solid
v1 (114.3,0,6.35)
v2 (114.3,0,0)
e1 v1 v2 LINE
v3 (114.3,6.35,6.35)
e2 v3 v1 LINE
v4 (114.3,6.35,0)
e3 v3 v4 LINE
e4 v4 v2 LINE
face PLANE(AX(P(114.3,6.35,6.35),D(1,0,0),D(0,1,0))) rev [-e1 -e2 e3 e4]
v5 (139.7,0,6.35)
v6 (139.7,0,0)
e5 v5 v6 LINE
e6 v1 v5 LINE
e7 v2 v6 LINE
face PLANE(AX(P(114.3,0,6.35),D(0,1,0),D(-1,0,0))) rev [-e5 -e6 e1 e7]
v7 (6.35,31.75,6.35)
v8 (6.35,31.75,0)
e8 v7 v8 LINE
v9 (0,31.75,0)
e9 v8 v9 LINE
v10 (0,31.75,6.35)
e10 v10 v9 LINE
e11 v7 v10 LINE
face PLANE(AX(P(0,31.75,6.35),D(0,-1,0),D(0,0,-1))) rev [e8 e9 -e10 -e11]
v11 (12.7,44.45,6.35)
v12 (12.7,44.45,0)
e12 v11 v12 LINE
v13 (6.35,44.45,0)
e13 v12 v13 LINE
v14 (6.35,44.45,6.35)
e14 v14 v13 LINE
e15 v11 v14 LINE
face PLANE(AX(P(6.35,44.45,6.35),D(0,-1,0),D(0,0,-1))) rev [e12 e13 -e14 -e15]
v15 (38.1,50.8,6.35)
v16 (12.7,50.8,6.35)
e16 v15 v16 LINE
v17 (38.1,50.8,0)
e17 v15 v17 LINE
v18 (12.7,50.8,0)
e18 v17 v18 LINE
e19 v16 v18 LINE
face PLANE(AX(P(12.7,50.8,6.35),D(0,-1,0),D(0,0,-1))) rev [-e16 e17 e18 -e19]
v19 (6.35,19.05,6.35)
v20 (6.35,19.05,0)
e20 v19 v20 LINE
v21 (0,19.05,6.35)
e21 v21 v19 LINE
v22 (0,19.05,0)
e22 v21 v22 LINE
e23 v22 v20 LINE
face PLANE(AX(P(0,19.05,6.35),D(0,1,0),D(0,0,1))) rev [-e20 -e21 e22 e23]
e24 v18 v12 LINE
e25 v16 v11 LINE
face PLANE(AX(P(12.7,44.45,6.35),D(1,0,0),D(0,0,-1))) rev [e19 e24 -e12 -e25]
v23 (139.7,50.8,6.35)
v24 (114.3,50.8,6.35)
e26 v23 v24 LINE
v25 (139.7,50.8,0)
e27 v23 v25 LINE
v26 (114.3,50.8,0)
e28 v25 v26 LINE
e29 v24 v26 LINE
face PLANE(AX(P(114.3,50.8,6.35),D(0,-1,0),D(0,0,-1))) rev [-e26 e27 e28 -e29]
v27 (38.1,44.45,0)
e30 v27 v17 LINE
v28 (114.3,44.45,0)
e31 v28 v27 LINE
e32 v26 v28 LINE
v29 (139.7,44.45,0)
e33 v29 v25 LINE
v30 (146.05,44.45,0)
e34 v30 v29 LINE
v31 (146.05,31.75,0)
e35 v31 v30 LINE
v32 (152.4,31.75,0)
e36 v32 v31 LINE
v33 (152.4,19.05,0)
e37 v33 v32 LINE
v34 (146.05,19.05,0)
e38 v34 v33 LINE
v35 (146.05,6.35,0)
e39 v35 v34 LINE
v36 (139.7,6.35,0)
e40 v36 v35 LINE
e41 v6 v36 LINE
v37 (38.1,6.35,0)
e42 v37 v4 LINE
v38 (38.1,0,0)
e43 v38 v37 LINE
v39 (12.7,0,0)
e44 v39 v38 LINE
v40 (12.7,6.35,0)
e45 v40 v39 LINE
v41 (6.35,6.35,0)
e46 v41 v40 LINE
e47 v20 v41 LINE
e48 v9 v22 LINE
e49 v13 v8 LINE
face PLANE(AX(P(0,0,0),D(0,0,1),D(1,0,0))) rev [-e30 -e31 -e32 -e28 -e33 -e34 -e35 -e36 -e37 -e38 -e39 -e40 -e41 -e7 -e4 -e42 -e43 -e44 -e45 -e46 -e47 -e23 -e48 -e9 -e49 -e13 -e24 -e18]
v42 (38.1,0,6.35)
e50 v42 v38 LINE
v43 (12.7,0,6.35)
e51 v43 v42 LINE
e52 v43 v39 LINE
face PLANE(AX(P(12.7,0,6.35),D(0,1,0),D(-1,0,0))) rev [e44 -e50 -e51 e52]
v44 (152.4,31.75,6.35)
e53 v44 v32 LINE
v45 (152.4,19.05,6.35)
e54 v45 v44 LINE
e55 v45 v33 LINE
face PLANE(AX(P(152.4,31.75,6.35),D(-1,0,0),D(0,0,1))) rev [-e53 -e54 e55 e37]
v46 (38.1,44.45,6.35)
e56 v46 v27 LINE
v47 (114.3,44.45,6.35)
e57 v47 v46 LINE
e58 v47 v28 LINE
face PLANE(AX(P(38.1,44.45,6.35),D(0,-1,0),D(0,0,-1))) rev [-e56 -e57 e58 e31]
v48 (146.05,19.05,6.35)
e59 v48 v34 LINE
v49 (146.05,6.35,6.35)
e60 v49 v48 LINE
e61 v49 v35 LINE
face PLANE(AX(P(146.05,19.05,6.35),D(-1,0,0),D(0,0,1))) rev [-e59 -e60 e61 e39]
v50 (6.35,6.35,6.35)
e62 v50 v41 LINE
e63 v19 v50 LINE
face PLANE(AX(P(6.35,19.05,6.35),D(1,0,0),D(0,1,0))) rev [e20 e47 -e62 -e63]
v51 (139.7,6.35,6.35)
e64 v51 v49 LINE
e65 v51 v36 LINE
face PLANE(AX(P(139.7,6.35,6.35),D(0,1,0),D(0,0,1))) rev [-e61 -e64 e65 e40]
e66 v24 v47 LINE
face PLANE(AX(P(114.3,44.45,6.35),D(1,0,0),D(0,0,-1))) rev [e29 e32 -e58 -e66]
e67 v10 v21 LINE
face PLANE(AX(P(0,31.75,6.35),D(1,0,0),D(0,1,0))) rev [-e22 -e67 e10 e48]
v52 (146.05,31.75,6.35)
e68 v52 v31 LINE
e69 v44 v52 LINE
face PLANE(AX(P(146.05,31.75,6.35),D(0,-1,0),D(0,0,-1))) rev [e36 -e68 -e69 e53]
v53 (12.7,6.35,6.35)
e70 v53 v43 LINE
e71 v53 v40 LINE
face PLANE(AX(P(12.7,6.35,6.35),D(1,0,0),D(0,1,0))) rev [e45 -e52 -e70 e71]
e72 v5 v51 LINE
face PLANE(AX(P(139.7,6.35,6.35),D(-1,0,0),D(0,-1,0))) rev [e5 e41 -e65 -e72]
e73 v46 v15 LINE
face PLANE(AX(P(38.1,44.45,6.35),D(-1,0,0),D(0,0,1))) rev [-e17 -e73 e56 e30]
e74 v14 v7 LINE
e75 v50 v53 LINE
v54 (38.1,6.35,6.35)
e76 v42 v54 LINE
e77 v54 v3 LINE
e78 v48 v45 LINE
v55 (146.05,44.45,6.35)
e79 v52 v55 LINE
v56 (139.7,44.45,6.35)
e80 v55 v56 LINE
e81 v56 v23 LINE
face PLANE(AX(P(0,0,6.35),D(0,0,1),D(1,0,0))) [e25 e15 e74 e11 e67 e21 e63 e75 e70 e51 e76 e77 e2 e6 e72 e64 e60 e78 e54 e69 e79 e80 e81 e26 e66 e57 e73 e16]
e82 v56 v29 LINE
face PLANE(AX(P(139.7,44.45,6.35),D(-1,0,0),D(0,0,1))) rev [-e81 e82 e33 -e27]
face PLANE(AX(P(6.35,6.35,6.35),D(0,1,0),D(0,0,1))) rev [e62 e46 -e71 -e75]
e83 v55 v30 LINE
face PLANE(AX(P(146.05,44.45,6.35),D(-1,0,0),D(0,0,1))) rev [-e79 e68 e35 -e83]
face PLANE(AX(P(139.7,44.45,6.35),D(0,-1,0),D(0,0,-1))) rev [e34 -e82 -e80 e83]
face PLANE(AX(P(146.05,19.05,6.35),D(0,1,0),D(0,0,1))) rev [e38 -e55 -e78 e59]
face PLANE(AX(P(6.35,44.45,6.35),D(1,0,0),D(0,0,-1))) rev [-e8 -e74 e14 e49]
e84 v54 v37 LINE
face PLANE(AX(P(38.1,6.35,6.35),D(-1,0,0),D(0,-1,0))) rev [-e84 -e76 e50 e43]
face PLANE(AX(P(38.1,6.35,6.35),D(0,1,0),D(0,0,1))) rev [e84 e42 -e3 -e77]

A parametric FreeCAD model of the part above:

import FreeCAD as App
import Part
import Sketcher
from FreeCAD import Vector
Q = App.Units.Quantity


def add_polygon(sketch, points):
    """Adds a closed chain of lines whose ends are joined by coincident constraints."""
    first, n = sketch.GeometryCount, len(points)
    for a, b in zip(points, points[1:] + points[:1]):
        sketch.addGeometry(Part.LineSegment(App.Vector(*a, 0), App.Vector(*b, 0)), False)
    for i in range(n):
        sketch.addConstraint(Sketcher.Constraint("Coincident", first + i, 2, first + (i + 1) % n, 1))

doc = App.newDocument("Part")
params = doc.addObject("Spreadsheet::Sheet", "Params")
for row, (alias, value) in enumerate([
    ("sketch1_width", "1 in"),
    ("sketch1_width2", "3 in"),
    ("sketch1_height", "0.5 in"),
    ("pad1_length", "0.25 in"),
], start=1):
    params.set(f"A{row}", alias)
    params.set(f"B{row}", "=" + value)
    params.setAlias(f"B{row}", alias)

body = doc.addObject("PartDesign::Body", "Body")

# Sketch on XY plane
sketch1 = body.newObject("Sketcher::SketchObject", "Sketch")
sketch1.AttachmentSupport = (doc.getObject("XY_Plane"), [""])
sketch1.MapMode = "FlatFace"
add_polygon(sketch1, [(0, 19), (6, 19), (6, 6), (13, 6), (13, 0), (38, 0), (38, 6), (114, 6), (114, 0), (140, 0), (140, 6), (146, 6), (146, 19), (152, 19), (152, 32), (146, 32), (146, 44), (140, 44), (140, 51), (114, 51), (114, 44), (38, 44), (38, 51), (13, 51), (13, 44), (6, 44), (6, 32), (0, 32)])  # lines 0-27
sketch1.addConstraint([
    Sketcher.Constraint("Horizontal", 0),
    Sketcher.Constraint("Vertical", 1),
    Sketcher.Constraint("Horizontal", 2),
    Sketcher.Constraint("Vertical", 3),
    Sketcher.Constraint("Horizontal", 4),
    Sketcher.Constraint("Vertical", 5),
    Sketcher.Constraint("Horizontal", 6),
    Sketcher.Constraint("Vertical", 7),
    Sketcher.Constraint("Horizontal", 8),
    Sketcher.Constraint("Vertical", 9),
    Sketcher.Constraint("Horizontal", 10),
    Sketcher.Constraint("Vertical", 11),
    Sketcher.Constraint("Horizontal", 12),
    Sketcher.Constraint("Vertical", 13),
    Sketcher.Constraint("Horizontal", 14),
    Sketcher.Constraint("Vertical", 15),
    Sketcher.Constraint("Horizontal", 16),
    Sketcher.Constraint("Vertical", 17),
    Sketcher.Constraint("Horizontal", 18),
    Sketcher.Constraint("Vertical", 19),
    Sketcher.Constraint("Horizontal", 20),
    Sketcher.Constraint("Vertical", 21),
    Sketcher.Constraint("Horizontal", 22),
    Sketcher.Constraint("Vertical", 23),
    Sketcher.Constraint("Horizontal", 24),
    Sketcher.Constraint("Vertical", 25),
    Sketcher.Constraint("Horizontal", 26),
    Sketcher.Constraint("Vertical", 27),
    Sketcher.Constraint("PointOnObject", 3, 2, -1),
    Sketcher.Constraint("PointOnObject", 7, 2, -1),
    Sketcher.Constraint("PointOnObject", 26, 2, -2),
    Sketcher.Constraint("Horizontal", 2, 2, 5, 2),
    Sketcher.Constraint("Horizontal", 6, 2, 9, 2),
    Sketcher.Constraint("Horizontal", 0, 2, 11, 2),
    Sketcher.Constraint("Horizontal", 16, 2, 19, 2),
    Sketcher.Constraint("Horizontal", 18, 2, 21, 2),
    Sketcher.Constraint("Horizontal", 20, 2, 23, 2),
    Sketcher.Constraint("Horizontal", 14, 2, 25, 2),
    Sketcher.Constraint("Vertical", 11, 2, 14, 2),
    Sketcher.Constraint("Vertical", 9, 2, 16, 2),
    Sketcher.Constraint("Vertical", 7, 2, 18, 2),
    Sketcher.Constraint("Vertical", 5, 2, 20, 2),
    Sketcher.Constraint("Vertical", 3, 2, 22, 2),
    Sketcher.Constraint("Vertical", 1, 2, 24, 2),
    Sketcher.Constraint("Equal", 0, 2),
    Sketcher.Constraint("Equal", 4, 8),
    Sketcher.Constraint("Equal", 2, 10),
    Sketcher.Constraint("Equal", 10, 12),
    Sketcher.Constraint("Equal", 26, 3),
    Sketcher.Constraint("Equal", 11, 13),
    Sketcher.Constraint("Equal", 13, 15),
    Sketcher.Constraint("Equal", 9, 17),
    Sketcher.Constraint("DistanceX", 4, 1, 4, 2, Q("1 in")),
    Sketcher.Constraint("DistanceX", 6, 1, 6, 2, Q("3 in")),
    Sketcher.Constraint("DistanceY", 1, 2, 1, 1, Q("0.5 in")),
    Sketcher.Constraint("DistanceX", -1, 1, 12, 2, Q("6 in")),
])
sketch1.setExpression("Constraints[80]", "Params.sketch1_width")
sketch1.setExpression("Constraints[81]", "Params.sketch1_width2")
sketch1.setExpression("Constraints[82]", "Params.sketch1_height")
pad1 = body.newObject("PartDesign::Pad", "Pad")
pad1.Profile = sketch1
pad1.setExpression("Length", "Params.pad1_length")

doc.recompute()
